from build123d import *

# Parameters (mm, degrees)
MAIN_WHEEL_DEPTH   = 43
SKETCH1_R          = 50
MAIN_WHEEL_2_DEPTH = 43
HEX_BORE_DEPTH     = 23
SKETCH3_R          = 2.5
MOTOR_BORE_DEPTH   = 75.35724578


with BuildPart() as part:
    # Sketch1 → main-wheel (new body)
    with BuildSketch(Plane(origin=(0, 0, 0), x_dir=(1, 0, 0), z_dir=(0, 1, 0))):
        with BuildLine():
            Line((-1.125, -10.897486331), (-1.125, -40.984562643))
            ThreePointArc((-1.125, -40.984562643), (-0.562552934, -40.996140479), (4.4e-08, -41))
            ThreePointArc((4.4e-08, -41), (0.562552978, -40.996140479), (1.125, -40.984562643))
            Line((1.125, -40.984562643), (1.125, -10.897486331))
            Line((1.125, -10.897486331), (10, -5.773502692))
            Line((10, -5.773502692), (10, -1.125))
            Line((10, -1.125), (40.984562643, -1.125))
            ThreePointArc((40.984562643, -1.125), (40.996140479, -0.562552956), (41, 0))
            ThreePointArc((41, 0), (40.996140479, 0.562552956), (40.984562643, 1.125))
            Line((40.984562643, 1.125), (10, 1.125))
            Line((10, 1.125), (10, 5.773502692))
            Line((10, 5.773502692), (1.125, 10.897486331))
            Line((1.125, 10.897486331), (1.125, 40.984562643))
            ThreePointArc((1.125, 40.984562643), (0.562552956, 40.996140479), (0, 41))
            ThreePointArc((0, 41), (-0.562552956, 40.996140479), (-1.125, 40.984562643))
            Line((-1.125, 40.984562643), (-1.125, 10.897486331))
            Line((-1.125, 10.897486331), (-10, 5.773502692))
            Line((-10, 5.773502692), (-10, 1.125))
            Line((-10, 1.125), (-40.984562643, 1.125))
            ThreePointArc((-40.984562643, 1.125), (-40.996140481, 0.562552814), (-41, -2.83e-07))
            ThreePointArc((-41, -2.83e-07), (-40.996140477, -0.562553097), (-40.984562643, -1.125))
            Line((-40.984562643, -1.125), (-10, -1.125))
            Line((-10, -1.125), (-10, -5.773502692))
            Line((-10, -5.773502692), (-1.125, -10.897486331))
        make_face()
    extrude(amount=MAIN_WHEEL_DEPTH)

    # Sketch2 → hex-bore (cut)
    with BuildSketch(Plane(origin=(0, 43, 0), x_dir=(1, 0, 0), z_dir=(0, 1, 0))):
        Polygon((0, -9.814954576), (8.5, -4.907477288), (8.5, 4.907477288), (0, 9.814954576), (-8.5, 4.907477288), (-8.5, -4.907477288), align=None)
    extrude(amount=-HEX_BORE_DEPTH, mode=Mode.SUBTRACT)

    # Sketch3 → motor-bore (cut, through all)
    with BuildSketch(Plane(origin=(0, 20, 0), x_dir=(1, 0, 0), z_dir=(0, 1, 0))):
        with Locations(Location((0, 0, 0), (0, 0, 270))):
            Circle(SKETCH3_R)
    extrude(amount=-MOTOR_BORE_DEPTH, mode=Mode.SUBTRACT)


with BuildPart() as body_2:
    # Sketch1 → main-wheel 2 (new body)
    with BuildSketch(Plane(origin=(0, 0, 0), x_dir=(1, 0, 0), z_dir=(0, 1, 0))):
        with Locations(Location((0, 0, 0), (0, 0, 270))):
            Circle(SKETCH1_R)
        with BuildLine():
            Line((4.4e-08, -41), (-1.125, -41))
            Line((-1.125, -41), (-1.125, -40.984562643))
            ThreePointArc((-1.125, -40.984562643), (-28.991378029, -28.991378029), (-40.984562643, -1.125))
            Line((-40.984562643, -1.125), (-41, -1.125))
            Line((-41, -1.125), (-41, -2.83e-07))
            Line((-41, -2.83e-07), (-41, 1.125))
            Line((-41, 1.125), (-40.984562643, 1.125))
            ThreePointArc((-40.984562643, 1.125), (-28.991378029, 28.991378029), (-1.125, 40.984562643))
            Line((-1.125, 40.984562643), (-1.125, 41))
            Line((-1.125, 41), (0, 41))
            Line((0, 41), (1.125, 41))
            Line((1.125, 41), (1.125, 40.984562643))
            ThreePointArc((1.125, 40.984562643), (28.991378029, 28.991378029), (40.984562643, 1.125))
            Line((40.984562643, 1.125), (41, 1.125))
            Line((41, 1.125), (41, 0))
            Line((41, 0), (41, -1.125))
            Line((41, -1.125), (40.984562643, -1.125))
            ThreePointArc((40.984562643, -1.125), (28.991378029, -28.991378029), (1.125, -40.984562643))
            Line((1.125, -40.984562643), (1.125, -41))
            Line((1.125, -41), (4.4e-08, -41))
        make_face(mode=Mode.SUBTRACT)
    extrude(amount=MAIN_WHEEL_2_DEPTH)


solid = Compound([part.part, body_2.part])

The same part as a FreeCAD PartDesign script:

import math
import FreeCAD as App
import Part
import Sketcher
from FreeCAD import Vector
Q = App.Units.Quantity

doc = App.newDocument("Part")
body = doc.addObject("PartDesign::Body", "Body")

sketch1 = doc.addObject("Sketcher::SketchObject", "Sketch")
body.addObject(sketch1)
sketch1.AttachmentSupport = (doc.XZ_Plane, [""])
sketch1.MapMode = "FlatFace"
sketch1.addGeometry([
    Part.LineSegment(Vector(-1.1, 10.9, 0), Vector(-1.1, 41, 0)),
    Part.ArcOfCircle(Part.Circle(Vector(0, 0, 0), Vector(0, 0, 1), 41), math.radians(90), math.radians(91.57)),
    Part.ArcOfCircle(Part.Circle(Vector(0, 0, 0), Vector(0, 0, 1), 41), math.radians(88.43), math.radians(90)),
    Part.LineSegment(Vector(1.1, 41, 0), Vector(1.1, 10.9, 0)),
    Part.LineSegment(Vector(1.1, 10.9, 0), Vector(10, 5.8, 0)),
    Part.LineSegment(Vector(10, 5.8, 0), Vector(10, 1.1, 0)),
    Part.LineSegment(Vector(10, 1.1, 0), Vector(41, 1.1, 0)),
    Part.ArcOfCircle(Part.Circle(Vector(0, 0, 0), Vector(0, 0, 1), 41), math.radians(0), math.radians(1.57)),
    Part.ArcOfCircle(Part.Circle(Vector(0, 0, 0), Vector(0, 0, 1), 41), math.radians(-1.57), math.radians(0)),
    Part.LineSegment(Vector(41, -1.1, 0), Vector(10, -1.1, 0)),
    Part.LineSegment(Vector(10, -1.1, 0), Vector(10, -5.8, 0)),
    Part.LineSegment(Vector(10, -5.8, 0), Vector(1.1, -10.9, 0)),
    Part.LineSegment(Vector(1.1, -10.9, 0), Vector(1.1, -41, 0)),
    Part.ArcOfCircle(Part.Circle(Vector(0, 0, 0), Vector(0, 0, 1), 41), math.radians(-90), math.radians(-88.43)),
    Part.ArcOfCircle(Part.Circle(Vector(0, 0, 0), Vector(0, 0, 1), 41), math.radians(-91.57), math.radians(-90)),
    Part.LineSegment(Vector(-1.1, -41, 0), Vector(-1.1, -10.9, 0)),
    Part.LineSegment(Vector(-1.1, -10.9, 0), Vector(-10, -5.8, 0)),
    Part.LineSegment(Vector(-10, -5.8, 0), Vector(-10, -1.1, 0)),
    Part.LineSegment(Vector(-10, -1.1, 0), Vector(-41, -1.1, 0)),
    Part.ArcOfCircle(Part.Circle(Vector(0, 0, 0), Vector(0, 0, 1), 41), math.radians(180), math.radians(181.57)),
    Part.ArcOfCircle(Part.Circle(Vector(0, 0, 0), Vector(0, 0, 1), 41), math.radians(178.43), math.radians(180)),
    Part.LineSegment(Vector(-41, 1.1, 0), Vector(-10, 1.1, 0)),
    Part.LineSegment(Vector(-10, 1.1, 0), Vector(-10, 5.8, 0)),
    Part.LineSegment(Vector(-10, 5.8, 0), Vector(-1.1, 10.9, 0)),
], False)
sketch1.addConstraint([
    Sketcher.Constraint("Coincident", 0, 2, 1, 2),
    Sketcher.Constraint("Tangent", 1, 1, 2, 2),
    Sketcher.Constraint("Coincident", 2, 1, 3, 1),
    Sketcher.Constraint("Coincident", 3, 2, 4, 1),
    Sketcher.Constraint("Coincident", 4, 2, 5, 1),
    Sketcher.Constraint("Coincident", 5, 2, 6, 1),
    Sketcher.Constraint("Coincident", 6, 2, 7, 2),
    Sketcher.Constraint("Tangent", 7, 1, 8, 2),
    Sketcher.Constraint("Coincident", 8, 1, 9, 1),
    Sketcher.Constraint("Coincident", 9, 2, 10, 1),
    Sketcher.Constraint("Coincident", 10, 2, 11, 1),
    Sketcher.Constraint("Coincident", 11, 2, 12, 1),
    Sketcher.Constraint("Coincident", 12, 2, 13, 2),
    Sketcher.Constraint("Tangent", 13, 1, 14, 2),
    Sketcher.Constraint("Coincident", 14, 1, 15, 1),
    Sketcher.Constraint("Coincident", 15, 2, 16, 1),
    Sketcher.Constraint("Coincident", 16, 2, 17, 1),
    Sketcher.Constraint("Coincident", 17, 2, 18, 1),
    Sketcher.Constraint("Coincident", 18, 2, 19, 2),
    Sketcher.Constraint("Tangent", 19, 1, 20, 2),
    Sketcher.Constraint("Coincident", 20, 1, 21, 1),
    Sketcher.Constraint("Coincident", 21, 2, 22, 1),
    Sketcher.Constraint("Coincident", 22, 2, 23, 1),
    Sketcher.Constraint("Coincident", 23, 2, 0, 1),
    Sketcher.Constraint("Vertical", 0),
    Sketcher.Constraint("Vertical", 3),
    Sketcher.Constraint("Vertical", 5),
    Sketcher.Constraint("Horizontal", 6),
    Sketcher.Constraint("Horizontal", 9),
    Sketcher.Constraint("Vertical", 10),
    Sketcher.Constraint("Vertical", 12),
    Sketcher.Constraint("Vertical", 15),
    Sketcher.Constraint("Vertical", 17),
    Sketcher.Constraint("Horizontal", 18),
    Sketcher.Constraint("Horizontal", 21),
    Sketcher.Constraint("Vertical", 22),
    Sketcher.Constraint("Coincident", 1, 3, -1, 1),
    Sketcher.Constraint("Coincident", 7, 3, -1, 1),
    Sketcher.Constraint("Coincident", 13, 3, -1, 1),
    Sketcher.Constraint("Coincident", 19, 3, -1, 1),
    Sketcher.Constraint("Equal", 7, 8),
    Sketcher.Constraint("Equal", 8, 13),
    Sketcher.Constraint("Equal", 13, 14),
    Sketcher.Constraint("Equal", 14, 19),
    Sketcher.Constraint("Equal", 19, 20),
    Sketcher.Constraint("Symmetric", 0, 2, 12, 2, -1, 1),
    Sketcher.Constraint("Symmetric", 3, 2, 15, 2, -1, 1),
    Sketcher.Constraint("Symmetric", 4, 2, 16, 2, -1, 1),
    Sketcher.Constraint("Symmetric", 9, 2, 21, 2, -1, 1),
    Sketcher.Constraint("Symmetric", 11, 2, 15, 2, -2),
    Sketcher.Constraint("Symmetric", 10, 2, 16, 2, -2),
    Sketcher.Constraint("PointOnObject", 1, 1, -2),
    Sketcher.Constraint("PointOnObject", 7, 1, -1),
    Sketcher.Constraint("PointOnObject", 13, 1, -2),
    Sketcher.Constraint("PointOnObject", 19, 1, -1),
    Sketcher.Constraint("Parallel", 11, 23),
    Sketcher.Constraint("Horizontal", 9, 2, 17, 2),
    Sketcher.Constraint("Horizontal", 6, 2, 20, 1),
    Sketcher.Constraint("Horizontal", 4, 2, 22, 2),
    Sketcher.Constraint("Radius", 2, 40.999999),
    Sketcher.Constraint("Radius", 19, 41.000002),
    Sketcher.Constraint("Angle", 4, Q("-30 deg")),
    Sketcher.Constraint("DistanceX", -1, 1, 4, 2, 10.0),
    Sketcher.Constraint("DistanceX", 0, 2, 2, 1, 2.25),
    Sketcher.Constraint("DistanceY", 8, 1, 6, 2, 2.25),
    Sketcher.Constraint("DistanceY", 14, 3, 4, 2, 5.773501),
])
pad1 = doc.addObject("PartDesign::Pad", "Pad")
body.addObject(pad1)
pad1.Profile = sketch1
pad1.Length = 43
pad1.Reversed = True

sketch2 = doc.addObject("Sketcher::SketchObject", "Sketch001")
body.addObject(sketch2)
sketch2.AttachmentSupport = (doc.XZ_Plane, [""])
sketch2.MapMode = "FlatFace"
sketch2.AttachmentOffset = App.Placement(Vector(0, 0, -43), App.Rotation())
sketch2.addGeometry([
    Part.LineSegment(Vector(0, 10, 0), Vector(8, 5, 0)),
    Part.LineSegment(Vector(8, 5, 0), Vector(8, -5, 0)),
    Part.LineSegment(Vector(8, -5, 0), Vector(0, -10, 0)),
    Part.LineSegment(Vector(0, -10, 0), Vector(-8, -5, 0)),
    Part.LineSegment(Vector(-8, -5, 0), Vector(-8, 5, 0)),
    Part.LineSegment(Vector(-8, 5, 0), Vector(0, 10, 0)),
], False)
sketch2.addConstraint([
    Sketcher.Constraint("Coincident", 0, 2, 1, 1),
    Sketcher.Constraint("Coincident", 1, 2, 2, 1),
    Sketcher.Constraint("Coincident", 2, 2, 3, 1),
    Sketcher.Constraint("Coincident", 3, 2, 4, 1),
    Sketcher.Constraint("Coincident", 4, 2, 5, 1),
    Sketcher.Constraint("Coincident", 5, 2, 0, 1),
    Sketcher.Constraint("Vertical", 1),
    Sketcher.Constraint("Vertical", 4),
    Sketcher.Constraint("Symmetric", 0, 2, 3, 2, -1, 1),
    Sketcher.Constraint("Symmetric", 2, 2, 5, 2, -1, 1),
    Sketcher.Constraint("PointOnObject", 2, 2, -2),
    Sketcher.Constraint("Parallel", 2, 5),
    Sketcher.Constraint("Horizontal", 1, 2, 3, 2),
    Sketcher.Constraint("Angle", 0, Q("-30 deg")),
    Sketcher.Constraint("DistanceX", 3, 2, 1, 2, 17.0),
    Sketcher.Constraint("DistanceY", 1, 2, 1, 1, 9.814955),
])
pocket1 = doc.addObject("PartDesign::Pocket", "Pocket")
body.addObject(pocket1)
pocket1.Profile = sketch2
pocket1.Length = 23
pocket1.Reversed = True

sketch3 = doc.addObject("Sketcher::SketchObject", "Sketch002")
body.addObject(sketch3)
sketch3.AttachmentSupport = (doc.XZ_Plane, [""])
sketch3.MapMode = "FlatFace"
sketch3.AttachmentOffset = App.Placement(Vector(0, 0, -20), App.Rotation())
sketch3.addGeometry(Part.Circle(Vector(0, 0, 0), Vector(0, 0, 1), 2.5), False)
sketch3.addConstraint([
    Sketcher.Constraint("Coincident", 0, 3, -1, 1),
    Sketcher.Constraint("Diameter", 0, 5.0),
])
pocket2 = doc.addObject("PartDesign::Pocket", "Pocket001")
body.addObject(pocket2)
pocket2.Profile = sketch3
pocket2.Type = "ThroughAll"
pocket2.Reversed = True
body2 = doc.addObject("PartDesign::Body", "Body001")

sketch4 = doc.addObject("Sketcher::SketchObject", "Sketch003")
body2.addObject(sketch4)
sketch4.AttachmentSupport = (doc.getObject("XZ_Plane001"), [""])
sketch4.MapMode = "FlatFace"
sketch4.addGeometry([
    Part.Circle(Vector(0, 0, 0), Vector(0, 0, 1), 50),
    Part.LineSegment(Vector(1.125, 41, 0), Vector(-1.125, 41, 0)),
    Part.LineSegment(Vector(-1.125, 41, 0), Vector(-1.125, 40.985, 0)),
    Part.ArcOfCircle(Part.Circle(Vector(0, 0, 0), Vector(0, 0, 1), 41), math.radians(92), math.radians(178)),
    Part.LineSegment(Vector(-40.985, 1.125, 0), Vector(-41, 1.125, 0)),
    Part.LineSegment(Vector(-41, 1.125, 0), Vector(-41, -1.125, 0)),
    Part.LineSegment(Vector(-41, -1.125, 0), Vector(-40.985, -1.125, 0)),
    Part.ArcOfCircle(Part.Circle(Vector(0, 0, 0), Vector(0, 0, 1), 41), math.radians(-178), math.radians(-92)),
    Part.LineSegment(Vector(-1.125, -40.985, 0), Vector(-1.125, -41, 0)),
    Part.LineSegment(Vector(-1.125, -41, 0), Vector(1.125, -41, 0)),
    Part.LineSegment(Vector(1.125, -41, 0), Vector(1.125, -40.985, 0)),
    Part.ArcOfCircle(Part.Circle(Vector(0, 0, 0), Vector(0, 0, 1), 41), math.radians(-88), math.radians(-2)),
    Part.LineSegment(Vector(40.985, -1.125, 0), Vector(41, -1.125, 0)),
    Part.LineSegment(Vector(41, -1.125, 0), Vector(41, 1.125, 0)),
    Part.LineSegment(Vector(41, 1.125, 0), Vector(40.985, 1.125, 0)),
    Part.ArcOfCircle(Part.Circle(Vector(0, 0, 0), Vector(0, 0, 1), 41), math.radians(2), math.radians(88)),
    Part.LineSegment(Vector(1.125, 40.985, 0), Vector(1.125, 41, 0)),
], False)
sketch4.addConstraint([
    Sketcher.Constraint("Coincident", 1, 2, 2, 1),
    Sketcher.Constraint("Coincident", 2, 2, 3, 1),
    Sketcher.Constraint("Coincident", 3, 2, 4, 1),
    Sketcher.Constraint("Coincident", 4, 2, 5, 1),
    Sketcher.Constraint("Coincident", 5, 2, 6, 1),
    Sketcher.Constraint("Coincident", 6, 2, 7, 1),
    Sketcher.Constraint("Coincident", 7, 2, 8, 1),
    Sketcher.Constraint("Coincident", 8, 2, 9, 1),
    Sketcher.Constraint("Coincident", 9, 2, 10, 1),
    Sketcher.Constraint("Coincident", 10, 2, 11, 1),
    Sketcher.Constraint("Coincident", 11, 2, 12, 1),
    Sketcher.Constraint("Coincident", 12, 2, 13, 1),
    Sketcher.Constraint("Coincident", 13, 2, 14, 1),
    Sketcher.Constraint("Coincident", 14, 2, 15, 1),
    Sketcher.Constraint("Coincident", 15, 2, 16, 1),
    Sketcher.Constraint("Coincident", 16, 2, 1, 1),
    Sketcher.Constraint("Horizontal", 1),
    Sketcher.Constraint("Vertical", 2),
    Sketcher.Constraint("Horizontal", 4),
    Sketcher.Constraint("Vertical", 5),
    Sketcher.Constraint("Horizontal", 6),
    Sketcher.Constraint("Vertical", 8),
    Sketcher.Constraint("Horizontal", 9),
    Sketcher.Constraint("Vertical", 10),
    Sketcher.Constraint("Horizontal", 12),
    Sketcher.Constraint("Vertical", 13),
    Sketcher.Constraint("Horizontal", 14),
    Sketcher.Constraint("Vertical", 16),
    Sketcher.Constraint("Coincident", 0, 3, -1, 1),
    Sketcher.Constraint("Coincident", 3, 3, -1, 1),
    Sketcher.Constraint("Coincident", 7, 3, -1, 1),
    Sketcher.Constraint("Coincident", 11, 3, -1, 1),
    Sketcher.Constraint("Coincident", 15, 3, -1, 1),
    Sketcher.Constraint("Equal", 3, 7),
    Sketcher.Constraint("Equal", 7, 11),
    Sketcher.Constraint("Equal", 11, 15),
    Sketcher.Constraint("Symmetric", 1, 2, 9, 2, -1, 1),
    Sketcher.Constraint("Symmetric", 4, 2, 12, 2, -1, 1),
    Sketcher.Constraint("Horizontal", 7, 2, 10, 2),
    Sketcher.Constraint("Horizontal", 6, 2, 11, 2),
    Sketcher.Constraint("Horizontal", 4, 2, 13, 2),
    Sketcher.Constraint("Horizontal", 2, 2, 15, 2),
    Sketcher.Constraint("Equal", 14, 2),
    Sketcher.Constraint("Equal", 9, 5),
    Sketcher.Constraint("Diameter", 0, 100.0),
    Sketcher.Constraint("Radius", 3, 41.0),
    Sketcher.Constraint("DistanceY", -1, 1, 1, 2, 41.0),
    Sketcher.Constraint("DistanceX", 1, 2, 1, 1, 2.25),
])
pad2 = doc.addObject("PartDesign::Pad", "Pad001")
body2.addObject(pad2)
pad2.Profile = sketch4
pad2.Length = 43
pad2.Reversed = True

doc.recompute()
